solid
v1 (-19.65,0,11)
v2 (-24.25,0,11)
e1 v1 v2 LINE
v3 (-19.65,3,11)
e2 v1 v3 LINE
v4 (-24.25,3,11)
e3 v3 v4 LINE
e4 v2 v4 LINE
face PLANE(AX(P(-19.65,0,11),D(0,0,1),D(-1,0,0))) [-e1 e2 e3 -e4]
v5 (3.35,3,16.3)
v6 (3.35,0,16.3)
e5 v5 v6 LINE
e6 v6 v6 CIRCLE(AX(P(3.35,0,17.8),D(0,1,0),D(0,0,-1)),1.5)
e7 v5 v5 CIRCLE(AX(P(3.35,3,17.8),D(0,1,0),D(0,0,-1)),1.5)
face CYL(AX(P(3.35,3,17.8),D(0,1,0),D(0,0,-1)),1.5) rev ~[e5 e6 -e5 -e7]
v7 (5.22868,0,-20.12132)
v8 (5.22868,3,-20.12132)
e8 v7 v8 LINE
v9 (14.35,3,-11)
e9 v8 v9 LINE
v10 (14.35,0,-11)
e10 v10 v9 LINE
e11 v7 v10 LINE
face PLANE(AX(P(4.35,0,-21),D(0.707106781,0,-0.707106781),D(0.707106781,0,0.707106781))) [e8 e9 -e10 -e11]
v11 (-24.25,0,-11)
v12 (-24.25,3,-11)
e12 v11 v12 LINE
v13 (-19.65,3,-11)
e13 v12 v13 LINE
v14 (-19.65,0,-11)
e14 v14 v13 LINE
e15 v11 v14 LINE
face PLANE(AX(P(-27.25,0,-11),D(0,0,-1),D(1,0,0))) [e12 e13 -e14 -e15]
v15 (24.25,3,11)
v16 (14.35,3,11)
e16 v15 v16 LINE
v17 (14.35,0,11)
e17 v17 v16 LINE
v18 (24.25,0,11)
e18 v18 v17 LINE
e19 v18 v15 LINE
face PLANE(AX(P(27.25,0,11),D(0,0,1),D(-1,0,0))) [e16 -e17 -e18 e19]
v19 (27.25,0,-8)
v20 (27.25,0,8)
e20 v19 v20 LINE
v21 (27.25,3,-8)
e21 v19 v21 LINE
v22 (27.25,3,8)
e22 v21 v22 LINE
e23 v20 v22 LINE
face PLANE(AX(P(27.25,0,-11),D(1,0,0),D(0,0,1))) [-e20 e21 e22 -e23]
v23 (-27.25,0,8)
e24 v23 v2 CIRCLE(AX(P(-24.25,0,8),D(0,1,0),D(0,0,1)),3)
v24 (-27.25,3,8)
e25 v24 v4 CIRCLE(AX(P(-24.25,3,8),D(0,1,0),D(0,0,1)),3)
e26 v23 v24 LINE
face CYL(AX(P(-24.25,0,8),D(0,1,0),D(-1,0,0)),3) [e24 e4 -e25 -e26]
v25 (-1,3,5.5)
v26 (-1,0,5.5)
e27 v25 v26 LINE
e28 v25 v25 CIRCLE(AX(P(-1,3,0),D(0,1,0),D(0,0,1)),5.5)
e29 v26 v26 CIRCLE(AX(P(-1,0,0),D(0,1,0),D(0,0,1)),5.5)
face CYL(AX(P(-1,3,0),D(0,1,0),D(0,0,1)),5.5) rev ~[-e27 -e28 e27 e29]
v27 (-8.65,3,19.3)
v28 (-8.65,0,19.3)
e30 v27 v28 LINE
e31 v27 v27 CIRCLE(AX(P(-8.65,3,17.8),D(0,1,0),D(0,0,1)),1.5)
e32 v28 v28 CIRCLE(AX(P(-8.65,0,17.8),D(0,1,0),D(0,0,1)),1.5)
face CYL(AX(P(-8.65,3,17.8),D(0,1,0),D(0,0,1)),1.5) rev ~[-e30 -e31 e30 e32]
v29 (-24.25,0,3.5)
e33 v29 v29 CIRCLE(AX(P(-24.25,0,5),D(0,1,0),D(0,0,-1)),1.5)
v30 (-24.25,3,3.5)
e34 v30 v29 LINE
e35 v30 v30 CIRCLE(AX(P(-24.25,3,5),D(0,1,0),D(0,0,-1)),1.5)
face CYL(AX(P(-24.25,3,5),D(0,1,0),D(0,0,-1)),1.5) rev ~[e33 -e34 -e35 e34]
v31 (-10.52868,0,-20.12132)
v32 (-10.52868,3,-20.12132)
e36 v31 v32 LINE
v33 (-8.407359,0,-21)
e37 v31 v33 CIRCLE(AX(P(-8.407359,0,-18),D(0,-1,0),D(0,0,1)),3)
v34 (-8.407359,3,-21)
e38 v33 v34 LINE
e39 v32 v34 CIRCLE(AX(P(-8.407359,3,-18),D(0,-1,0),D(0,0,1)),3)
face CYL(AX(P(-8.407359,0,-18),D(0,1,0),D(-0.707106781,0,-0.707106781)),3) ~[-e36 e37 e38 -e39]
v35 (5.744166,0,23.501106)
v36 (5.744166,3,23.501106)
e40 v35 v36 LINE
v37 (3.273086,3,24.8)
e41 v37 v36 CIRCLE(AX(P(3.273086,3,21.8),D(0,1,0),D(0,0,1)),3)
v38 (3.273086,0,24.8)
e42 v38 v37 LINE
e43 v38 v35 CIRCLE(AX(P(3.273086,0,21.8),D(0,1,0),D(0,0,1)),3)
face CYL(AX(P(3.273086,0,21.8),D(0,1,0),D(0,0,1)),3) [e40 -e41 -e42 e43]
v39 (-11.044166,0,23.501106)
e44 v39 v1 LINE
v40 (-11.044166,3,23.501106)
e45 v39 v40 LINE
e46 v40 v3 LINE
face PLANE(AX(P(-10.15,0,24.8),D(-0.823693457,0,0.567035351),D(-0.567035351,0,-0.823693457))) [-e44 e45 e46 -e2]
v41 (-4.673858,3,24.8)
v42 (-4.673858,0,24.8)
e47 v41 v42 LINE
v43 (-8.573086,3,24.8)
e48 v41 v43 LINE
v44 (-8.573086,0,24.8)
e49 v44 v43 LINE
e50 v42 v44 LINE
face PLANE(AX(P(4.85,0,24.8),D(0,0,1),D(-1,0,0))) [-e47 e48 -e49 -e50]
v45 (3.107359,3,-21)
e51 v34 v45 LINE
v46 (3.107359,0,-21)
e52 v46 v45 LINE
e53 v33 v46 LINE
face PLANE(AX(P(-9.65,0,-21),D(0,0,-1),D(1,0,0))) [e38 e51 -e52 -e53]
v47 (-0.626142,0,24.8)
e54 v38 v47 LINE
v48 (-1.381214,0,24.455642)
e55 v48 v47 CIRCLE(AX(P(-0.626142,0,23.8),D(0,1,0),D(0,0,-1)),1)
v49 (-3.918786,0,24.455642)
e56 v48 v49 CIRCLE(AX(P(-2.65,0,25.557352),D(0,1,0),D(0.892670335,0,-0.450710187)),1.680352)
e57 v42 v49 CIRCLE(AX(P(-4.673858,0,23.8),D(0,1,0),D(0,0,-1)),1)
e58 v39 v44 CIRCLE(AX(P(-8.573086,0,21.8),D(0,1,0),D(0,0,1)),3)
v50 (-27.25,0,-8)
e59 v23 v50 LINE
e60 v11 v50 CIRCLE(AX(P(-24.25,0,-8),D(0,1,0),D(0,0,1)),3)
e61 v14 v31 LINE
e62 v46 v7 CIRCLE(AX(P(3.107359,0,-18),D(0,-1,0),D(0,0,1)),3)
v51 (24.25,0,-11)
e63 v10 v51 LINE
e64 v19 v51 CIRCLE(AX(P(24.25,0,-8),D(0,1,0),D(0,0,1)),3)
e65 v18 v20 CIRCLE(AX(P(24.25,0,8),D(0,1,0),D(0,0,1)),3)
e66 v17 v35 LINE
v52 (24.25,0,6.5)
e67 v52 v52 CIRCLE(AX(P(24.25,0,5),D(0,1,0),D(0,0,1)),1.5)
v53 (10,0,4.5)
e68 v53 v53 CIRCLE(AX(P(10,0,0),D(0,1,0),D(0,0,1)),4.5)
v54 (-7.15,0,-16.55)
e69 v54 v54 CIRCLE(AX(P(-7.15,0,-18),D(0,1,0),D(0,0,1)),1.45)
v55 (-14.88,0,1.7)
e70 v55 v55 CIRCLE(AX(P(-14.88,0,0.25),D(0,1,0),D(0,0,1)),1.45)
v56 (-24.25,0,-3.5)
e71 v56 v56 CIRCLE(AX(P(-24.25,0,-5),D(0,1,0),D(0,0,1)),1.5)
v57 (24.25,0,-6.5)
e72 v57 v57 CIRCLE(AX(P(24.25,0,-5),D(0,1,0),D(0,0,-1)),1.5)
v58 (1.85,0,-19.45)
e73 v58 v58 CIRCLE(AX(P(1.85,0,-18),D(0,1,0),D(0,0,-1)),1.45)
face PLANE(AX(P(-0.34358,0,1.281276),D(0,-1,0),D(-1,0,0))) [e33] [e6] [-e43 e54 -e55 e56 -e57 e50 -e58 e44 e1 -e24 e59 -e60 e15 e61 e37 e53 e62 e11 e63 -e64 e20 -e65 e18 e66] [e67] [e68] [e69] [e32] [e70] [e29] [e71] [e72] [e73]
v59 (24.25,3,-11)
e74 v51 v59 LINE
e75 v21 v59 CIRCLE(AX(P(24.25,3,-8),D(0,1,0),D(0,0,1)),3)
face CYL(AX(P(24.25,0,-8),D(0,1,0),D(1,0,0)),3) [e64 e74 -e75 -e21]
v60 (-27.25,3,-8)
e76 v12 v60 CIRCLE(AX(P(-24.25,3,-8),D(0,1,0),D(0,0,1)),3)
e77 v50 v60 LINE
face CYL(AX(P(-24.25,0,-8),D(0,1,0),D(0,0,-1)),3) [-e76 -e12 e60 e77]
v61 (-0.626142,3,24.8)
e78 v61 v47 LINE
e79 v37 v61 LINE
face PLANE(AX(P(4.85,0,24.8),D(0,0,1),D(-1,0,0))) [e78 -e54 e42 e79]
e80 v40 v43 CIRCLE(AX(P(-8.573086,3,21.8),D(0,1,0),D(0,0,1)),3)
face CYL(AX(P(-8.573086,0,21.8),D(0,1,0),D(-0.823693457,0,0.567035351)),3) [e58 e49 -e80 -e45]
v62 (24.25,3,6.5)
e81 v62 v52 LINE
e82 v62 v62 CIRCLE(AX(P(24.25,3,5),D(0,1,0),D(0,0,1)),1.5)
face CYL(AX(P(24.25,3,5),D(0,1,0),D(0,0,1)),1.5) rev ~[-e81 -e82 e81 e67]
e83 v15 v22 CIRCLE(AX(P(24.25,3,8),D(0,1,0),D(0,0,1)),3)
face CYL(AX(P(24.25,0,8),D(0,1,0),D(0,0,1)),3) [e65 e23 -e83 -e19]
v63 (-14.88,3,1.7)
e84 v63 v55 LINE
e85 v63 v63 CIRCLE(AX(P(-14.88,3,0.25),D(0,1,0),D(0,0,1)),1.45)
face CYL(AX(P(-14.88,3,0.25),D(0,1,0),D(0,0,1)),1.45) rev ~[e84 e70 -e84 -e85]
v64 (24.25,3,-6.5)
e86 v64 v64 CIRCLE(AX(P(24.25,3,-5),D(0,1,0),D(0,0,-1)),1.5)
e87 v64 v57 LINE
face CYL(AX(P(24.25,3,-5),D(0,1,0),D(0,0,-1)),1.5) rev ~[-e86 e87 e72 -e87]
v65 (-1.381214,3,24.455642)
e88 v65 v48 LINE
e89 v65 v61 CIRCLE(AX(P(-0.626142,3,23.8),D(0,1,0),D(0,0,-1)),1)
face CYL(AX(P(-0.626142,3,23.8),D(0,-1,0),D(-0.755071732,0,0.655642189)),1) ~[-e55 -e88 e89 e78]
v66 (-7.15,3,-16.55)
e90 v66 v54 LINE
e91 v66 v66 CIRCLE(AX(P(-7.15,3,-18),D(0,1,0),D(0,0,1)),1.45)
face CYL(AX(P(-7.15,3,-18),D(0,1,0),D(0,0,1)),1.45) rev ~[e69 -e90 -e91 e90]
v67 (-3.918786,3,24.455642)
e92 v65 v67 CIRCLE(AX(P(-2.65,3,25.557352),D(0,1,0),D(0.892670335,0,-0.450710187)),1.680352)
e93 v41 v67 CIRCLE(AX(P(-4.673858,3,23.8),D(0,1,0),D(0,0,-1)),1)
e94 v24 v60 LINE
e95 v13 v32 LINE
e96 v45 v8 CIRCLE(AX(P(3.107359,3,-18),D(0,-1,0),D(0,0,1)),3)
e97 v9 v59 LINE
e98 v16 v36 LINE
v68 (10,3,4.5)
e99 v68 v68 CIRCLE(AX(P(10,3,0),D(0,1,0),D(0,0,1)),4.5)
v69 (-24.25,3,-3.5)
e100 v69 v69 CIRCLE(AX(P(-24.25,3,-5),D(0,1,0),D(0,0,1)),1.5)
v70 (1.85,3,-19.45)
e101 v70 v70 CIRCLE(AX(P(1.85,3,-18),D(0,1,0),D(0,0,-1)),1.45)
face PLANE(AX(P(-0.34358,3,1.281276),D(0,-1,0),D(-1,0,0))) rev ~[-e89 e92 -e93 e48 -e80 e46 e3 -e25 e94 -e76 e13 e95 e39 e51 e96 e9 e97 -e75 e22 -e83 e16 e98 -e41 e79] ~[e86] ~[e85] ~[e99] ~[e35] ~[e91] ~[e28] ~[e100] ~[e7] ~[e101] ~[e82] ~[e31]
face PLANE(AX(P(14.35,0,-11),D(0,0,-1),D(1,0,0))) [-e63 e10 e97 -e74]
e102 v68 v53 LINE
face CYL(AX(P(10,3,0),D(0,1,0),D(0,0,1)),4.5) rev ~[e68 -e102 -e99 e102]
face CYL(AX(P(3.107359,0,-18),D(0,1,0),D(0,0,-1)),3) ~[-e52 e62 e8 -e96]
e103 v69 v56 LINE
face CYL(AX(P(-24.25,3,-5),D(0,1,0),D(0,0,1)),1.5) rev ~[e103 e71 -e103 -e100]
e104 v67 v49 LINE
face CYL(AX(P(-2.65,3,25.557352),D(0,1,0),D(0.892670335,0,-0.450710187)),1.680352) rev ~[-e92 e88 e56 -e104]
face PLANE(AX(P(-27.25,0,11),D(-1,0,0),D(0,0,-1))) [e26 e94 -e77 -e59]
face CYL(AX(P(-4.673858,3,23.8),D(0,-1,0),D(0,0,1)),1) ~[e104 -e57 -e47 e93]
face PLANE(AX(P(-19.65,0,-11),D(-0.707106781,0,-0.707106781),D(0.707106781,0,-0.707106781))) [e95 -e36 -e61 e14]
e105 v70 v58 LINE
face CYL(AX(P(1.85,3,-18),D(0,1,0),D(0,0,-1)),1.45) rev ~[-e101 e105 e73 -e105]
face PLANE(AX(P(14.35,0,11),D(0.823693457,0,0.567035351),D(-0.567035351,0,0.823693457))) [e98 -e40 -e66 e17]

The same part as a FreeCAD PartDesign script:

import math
import FreeCAD as App
import Part
import Sketcher
from FreeCAD import Vector


def edges_at(feature, points):
    """Names of the edges that pass closest to the given points."""
    edges = feature.Shape.Edges
    near = lambda p: min(range(len(edges)), key=lambda i: edges[i].distToShape(Part.Vertex(*p))[0])
    return sorted({f"Edge{near(p) + 1}" for p in points})


def add_polygon(sketch, points):
    """Adds a closed chain of lines whose ends are joined by coincident constraints."""
    first, n = sketch.GeometryCount, len(points)
    for a, b in zip(points, points[1:] + points[:1]):
        sketch.addGeometry(Part.LineSegment(App.Vector(*a, 0), App.Vector(*b, 0)), False)
    for i in range(n):
        sketch.addConstraint(Sketcher.Constraint("Coincident", first + i, 2, first + (i + 1) % n, 1))

doc = App.newDocument("Part")
body = doc.addObject("PartDesign::Body", "Body")

# Sketch on XZ plane
sketch1 = body.newObject("Sketcher::SketchObject", "Sketch")
sketch1.AttachmentSupport = (doc.getObject("XZ_Plane"), [""])
sketch1.MapMode = "FlatFace"
add_polygon(sketch1, [(-20, -11), (-27, -11), (-27, 11), (-20, 11), (-10, 25), (5, 25), (14, 11), (27, 11), (27, -11), (14, -11), (4, -21), (-10, -21)])  # lines 0-11
sketch1.addConstraint([
    Sketcher.Constraint("Horizontal", 0),
    Sketcher.Constraint("Vertical", 1),
    Sketcher.Constraint("Horizontal", 2),
    Sketcher.Constraint("Horizontal", 4),
    Sketcher.Constraint("Horizontal", 6),
    Sketcher.Constraint("Vertical", 7),
    Sketcher.Constraint("Horizontal", 8),
    Sketcher.Constraint("Horizontal", 10),
    Sketcher.Constraint("Symmetric", 0, 2, 6, 2, -1, 1),
    Sketcher.Constraint("Symmetric", 5, 2, 8, 2, -1),
    Sketcher.Constraint("Symmetric", 2, 2, 11, 2, -1),
    Sketcher.Constraint("Perpendicular", 9, 11),
    Sketcher.Constraint("Equal", 3, 5),
    Sketcher.Constraint("Equal", 9, 11),
    Sketcher.Constraint("DistanceX", 4, 1, 4, 2, 15.0),
    Sketcher.Constraint("DistanceX", 10, 2, 10, 1, 14.0),
    Sketcher.Constraint("DistanceY", 1, 1, 1, 2, 22.0),
    Sketcher.Constraint("DistanceX", 0, 2, 0, 1, 7.6),
    Sketcher.Constraint("DistanceX", 6, 1, 6, 2, 12.9),
    Sketcher.Constraint("DistanceY", 9, 2, -1, 1, 21.0),
    Sketcher.Constraint("DistanceY", -1, 1, 3, 2, 24.8),
])
pad1 = body.newObject("PartDesign::Pad", "Pad")
pad1.Profile = sketch1
pad1.Length = 3
pad1.Reversed = True

# Sketch on XZ plane
sketch2 = body.newObject("Sketcher::SketchObject", "Sketch001")
sketch2.AttachmentSupport = (doc.getObject("XZ_Plane"), [""])
sketch2.MapMode = "FlatFace"
sketch2.AttachmentOffset = App.Placement(Vector(0, 0, -3), App.Rotation())
sketch2.addGeometry([
    Part.Circle(Vector(-14.9, 0.2, 0), Vector(0, 0, 1), 1.4),  # 0
    Part.Circle(Vector(-1, 0, 0), Vector(0, 0, 1), 5.5),  # 1
    Part.Circle(Vector(10, 0, 0), Vector(0, 0, 1), 4.5),  # 2
    Part.Circle(Vector(-24.2, -5, 0), Vector(0, 0, 1), 1.5),  # 3
    Part.Circle(Vector(24.2, -5, 0), Vector(0, 0, 1), 1.5),  # 4
    Part.Circle(Vector(24.2, 5, 0), Vector(0, 0, 1), 1.5),  # 5
    Part.Circle(Vector(-24.2, 5, 0), Vector(0, 0, 1), 1.5),  # 6
    Part.Circle(Vector(-8.7, 17.8, 0), Vector(0, 0, 1), 1.5),  # 7
    Part.Circle(Vector(-7.2, -18, 0), Vector(0, 0, 1), 1.4),  # 8
    Part.Circle(Vector(3.4, 17.8, 0), Vector(0, 0, 1), 1.5),  # 9
    Part.Circle(Vector(1.9, -18, 0), Vector(0, 0, 1), 1.4),  # 10
    Part.LineSegment(Vector(-4.2, 24.8, 0), Vector(-1.1, 24.8, 0)),  # 11
    Part.ArcOfCircle(Part.Circle(Vector(-2.6, 25.6, 0), Vector(0, 0, 1), 1.7), math.radians(-153), math.radians(-27)),  # 12
], False)
sketch2.addConstraint([
    Sketcher.Constraint("Coincident", 11, 1, 12, 1),
    Sketcher.Constraint("Coincident", 12, 2, 11, 2),
    Sketcher.Constraint("Horizontal", 11),
    Sketcher.Constraint("Equal", 3, 4),
    Sketcher.Constraint("Equal", 4, 5),
    Sketcher.Constraint("Equal", 5, 6),
    Sketcher.Constraint("Equal", 6, 7),
    Sketcher.Constraint("Equal", 0, 8),
    Sketcher.Constraint("Equal", 7, 9),
    Sketcher.Constraint("Equal", 8, 10),
    Sketcher.Constraint("Symmetric", 3, 3, 5, 3, -1, 1),
    Sketcher.Constraint("Symmetric", 4, 3, 6, 3, -1, 1),
    Sketcher.Constraint("Symmetric", 3, 3, 4, 3, -2),
    Sketcher.Constraint("PointOnObject", 1, 3, -1),
    Sketcher.Constraint("PointOnObject", 2, 3, -1),
    Sketcher.Constraint("Horizontal", 7, 3, 9, 3),
    Sketcher.Constraint("Horizontal", 8, 3, 10, 3),
    Sketcher.Constraint("Diameter", 1, 11.0),
    Sketcher.Constraint("Diameter", 2, 9.0),
    Sketcher.Constraint("Diameter", 3, 3.0),
    Sketcher.Constraint("Diameter", 0, 2.9),
    Sketcher.Constraint("DistanceX", 11, 1, 11, 2, 3.0),
    Sketcher.Constraint("DistanceX", 1, 3, -1, 1, 1.0),
    Sketcher.Constraint("DistanceX", -1, 1, 2, 3, 10.0),
    Sketcher.Constraint("DistanceY", 3, 3, -1, 1, 5.0),
    Sketcher.Constraint("DistanceY", 8, 3, -1, 1, 18.0),
    Sketcher.Constraint("DistanceX", 7, 3, 9, 3, 12.0),
    Sketcher.Constraint("DistanceX", 8, 3, 10, 3, 9.0),
    Sketcher.Constraint("DistanceX", 7, 3, 12, 3, 6.0),
    Sketcher.Constraint("DistanceY", 7, 3, 11, 1, 7.0),
    Sketcher.Constraint("DistanceY", -1, 1, 7, 3, 17.8),
    Sketcher.Constraint("DistanceX", 3, 3, 4, 3, 48.5),
    Sketcher.Constraint("DistanceX", 6, 3, 7, 3, 15.6),
    Sketcher.Constraint("DistanceX", 3, 3, 8, 3, 17.1),
    Sketcher.Constraint("DistanceX", 0, 3, -1, 1, 14.88),
    Sketcher.Constraint("DistanceY", -1, 1, 0, 3, 0.25),
    Sketcher.Constraint("Radius", 12, 1.680352),
])
pocket1 = body.newObject("PartDesign::Pocket", "Pocket")
pocket1.Profile = sketch2
pocket1.Length = 3
pocket1.Reversed = True
doc.recompute()

fillet = body.newObject("PartDesign::Fillet", "Fillet")
fillet.Base = (pocket1, edges_at(pocket1, [
    (4.85, 1.5, 24.8),
    (-10.15, 1.5, 24.8),
    (-27.25, 1.5, 11),
    (-27.25, 1.5, -11),
    (-9.65, 1.5, -21),
    (4.35, 1.5, -21),
    (27.25, 1.5, -11),
    (27.25, 1.5, 11),
]))
fillet.Radius = 3
doc.recompute()

fillet2 = body.newObject("PartDesign::Fillet", "Fillet001")
fillet2.Base = (fillet, edges_at(fillet, [(-4.15, 1.5, 24.8), (-1.15, 1.5, 24.8)]))
fillet2.Radius = 1

doc.recompute()
